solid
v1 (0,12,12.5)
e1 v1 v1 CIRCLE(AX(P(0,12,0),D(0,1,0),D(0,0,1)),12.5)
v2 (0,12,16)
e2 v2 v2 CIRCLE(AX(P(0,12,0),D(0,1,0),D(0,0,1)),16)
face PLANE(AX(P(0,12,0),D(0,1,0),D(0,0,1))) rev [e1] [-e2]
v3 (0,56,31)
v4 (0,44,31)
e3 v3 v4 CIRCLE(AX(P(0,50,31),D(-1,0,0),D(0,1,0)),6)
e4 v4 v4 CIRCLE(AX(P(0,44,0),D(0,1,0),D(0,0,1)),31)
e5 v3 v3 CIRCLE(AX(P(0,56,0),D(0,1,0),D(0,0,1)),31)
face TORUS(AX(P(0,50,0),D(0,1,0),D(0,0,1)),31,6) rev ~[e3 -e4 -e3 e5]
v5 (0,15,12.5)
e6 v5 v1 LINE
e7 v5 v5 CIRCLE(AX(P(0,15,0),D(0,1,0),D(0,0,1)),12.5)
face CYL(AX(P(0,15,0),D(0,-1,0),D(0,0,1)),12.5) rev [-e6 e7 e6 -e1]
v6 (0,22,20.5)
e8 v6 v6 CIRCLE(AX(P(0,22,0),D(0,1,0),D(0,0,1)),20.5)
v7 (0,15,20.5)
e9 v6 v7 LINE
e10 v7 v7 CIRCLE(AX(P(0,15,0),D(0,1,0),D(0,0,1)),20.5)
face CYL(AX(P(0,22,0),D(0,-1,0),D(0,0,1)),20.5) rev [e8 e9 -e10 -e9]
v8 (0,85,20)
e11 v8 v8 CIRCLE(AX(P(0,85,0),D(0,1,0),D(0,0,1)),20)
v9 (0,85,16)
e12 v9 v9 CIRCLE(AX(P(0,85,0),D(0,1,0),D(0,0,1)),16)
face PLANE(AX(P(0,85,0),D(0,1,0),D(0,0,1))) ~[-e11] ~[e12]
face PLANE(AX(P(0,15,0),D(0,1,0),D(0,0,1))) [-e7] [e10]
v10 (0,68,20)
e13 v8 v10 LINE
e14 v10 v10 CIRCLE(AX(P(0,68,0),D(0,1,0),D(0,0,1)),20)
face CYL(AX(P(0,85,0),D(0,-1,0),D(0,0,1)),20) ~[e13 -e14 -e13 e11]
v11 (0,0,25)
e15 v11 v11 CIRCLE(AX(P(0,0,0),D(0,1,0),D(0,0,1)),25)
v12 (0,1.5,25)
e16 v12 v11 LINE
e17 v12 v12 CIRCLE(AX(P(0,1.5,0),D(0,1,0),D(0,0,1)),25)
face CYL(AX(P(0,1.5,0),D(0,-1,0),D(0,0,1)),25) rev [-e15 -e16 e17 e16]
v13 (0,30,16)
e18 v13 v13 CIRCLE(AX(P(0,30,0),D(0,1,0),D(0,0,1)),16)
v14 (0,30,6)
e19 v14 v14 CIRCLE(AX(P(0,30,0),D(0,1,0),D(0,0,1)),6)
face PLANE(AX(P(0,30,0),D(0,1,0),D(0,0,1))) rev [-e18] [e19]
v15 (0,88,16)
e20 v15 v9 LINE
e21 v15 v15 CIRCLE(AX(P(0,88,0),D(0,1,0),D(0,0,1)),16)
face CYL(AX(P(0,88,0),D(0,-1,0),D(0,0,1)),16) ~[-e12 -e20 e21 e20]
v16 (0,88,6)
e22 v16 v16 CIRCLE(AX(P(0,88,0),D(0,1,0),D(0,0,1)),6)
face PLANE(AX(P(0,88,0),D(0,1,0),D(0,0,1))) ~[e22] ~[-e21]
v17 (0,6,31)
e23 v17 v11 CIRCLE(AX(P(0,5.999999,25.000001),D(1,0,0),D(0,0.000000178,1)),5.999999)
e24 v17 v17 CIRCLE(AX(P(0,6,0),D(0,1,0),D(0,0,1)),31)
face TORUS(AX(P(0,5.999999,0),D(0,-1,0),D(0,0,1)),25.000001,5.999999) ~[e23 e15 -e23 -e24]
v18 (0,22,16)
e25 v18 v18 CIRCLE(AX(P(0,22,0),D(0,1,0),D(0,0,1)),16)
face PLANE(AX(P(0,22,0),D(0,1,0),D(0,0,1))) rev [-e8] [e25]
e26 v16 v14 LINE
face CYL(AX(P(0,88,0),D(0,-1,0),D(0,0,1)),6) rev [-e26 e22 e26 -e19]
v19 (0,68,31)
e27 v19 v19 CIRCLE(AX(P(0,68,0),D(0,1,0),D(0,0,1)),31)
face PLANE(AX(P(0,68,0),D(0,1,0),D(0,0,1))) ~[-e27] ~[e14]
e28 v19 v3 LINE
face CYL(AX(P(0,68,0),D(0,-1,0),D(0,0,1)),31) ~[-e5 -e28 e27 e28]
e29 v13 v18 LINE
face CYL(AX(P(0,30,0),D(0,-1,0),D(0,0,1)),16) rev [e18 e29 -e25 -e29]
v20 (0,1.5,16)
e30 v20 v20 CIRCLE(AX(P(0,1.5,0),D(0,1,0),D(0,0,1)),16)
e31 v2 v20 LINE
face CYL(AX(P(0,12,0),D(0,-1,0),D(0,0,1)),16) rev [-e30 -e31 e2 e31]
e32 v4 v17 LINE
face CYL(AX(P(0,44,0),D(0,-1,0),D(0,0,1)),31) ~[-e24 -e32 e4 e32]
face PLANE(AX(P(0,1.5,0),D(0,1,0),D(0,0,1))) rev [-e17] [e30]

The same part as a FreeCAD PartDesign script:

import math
import FreeCAD as App
import Part
import Sketcher


def add_polygon(sketch, points):
    """Adds a closed chain of lines whose ends are joined by coincident constraints."""
    first, n = sketch.GeometryCount, len(points)
    for a, b in zip(points, points[1:] + points[:1]):
        sketch.addGeometry(Part.LineSegment(App.Vector(*a, 0), App.Vector(*b, 0)), False)
    for i in range(n):
        sketch.addConstraint(Sketcher.Constraint("Coincident", first + i, 2, first + (i + 1) % n, 1))

doc = App.newDocument("Part")
body = doc.addObject("PartDesign::Body", "Body")

# Sketch on YZ plane
sketch1 = body.newObject("Sketcher::SketchObject", "Sketch")
sketch1.AttachmentSupport = (doc.getObject("YZ_Plane"), [""])
sketch1.MapMode = "FlatFace"
sketch1.addGeometry(Part.LineSegment(App.Vector(0, 25, 0), App.Vector(0, 0, 0)), False)
sketch1.addGeometry(Part.LineSegment(App.Vector(0, 0, 0), App.Vector(88, 0, 0)), False)
sketch1.addGeometry(Part.LineSegment(App.Vector(88, 0, 0), App.Vector(88, 16, 0)), False)
sketch1.addGeometry(Part.LineSegment(App.Vector(88, 16, 0), App.Vector(85, 16, 0)), False)
sketch1.addGeometry(Part.LineSegment(App.Vector(85, 16, 0), App.Vector(85, 20, 0)), False)
sketch1.addGeometry(Part.LineSegment(App.Vector(85, 20, 0), App.Vector(68, 20, 0)), False)
sketch1.addGeometry(Part.LineSegment(App.Vector(68, 20, 0), App.Vector(68, 31, 0)), False)
sketch1.addGeometry(Part.LineSegment(App.Vector(68, 31, 0), App.Vector(56, 31, 0)), False)
sketch1.addGeometry(Part.ArcOfCircle(Part.Circle(App.Vector(50, 31, 0), App.Vector(0, 0, 1), 6), math.radians(180), math.radians(360)), False)
sketch1.addGeometry(Part.LineSegment(App.Vector(44, 31, 0), App.Vector(6, 31, 0)), False)
sketch1.addGeometry(Part.ArcOfCircle(Part.Circle(App.Vector(6, 25, 0), App.Vector(0, 0, 1), 6), math.radians(90), math.radians(180)), False)
sketch1.addConstraint(Sketcher.Constraint("Coincident", 0, 2, 1, 1))
sketch1.addConstraint(Sketcher.Constraint("Coincident", 1, 2, 2, 1))
sketch1.addConstraint(Sketcher.Constraint("Coincident", 2, 2, 3, 1))
sketch1.addConstraint(Sketcher.Constraint("Coincident", 3, 2, 4, 1))
sketch1.addConstraint(Sketcher.Constraint("Coincident", 4, 2, 5, 1))
sketch1.addConstraint(Sketcher.Constraint("Coincident", 5, 2, 6, 1))
sketch1.addConstraint(Sketcher.Constraint("Coincident", 6, 2, 7, 1))
sketch1.addConstraint(Sketcher.Constraint("Coincident", 7, 2, 8, 2))
sketch1.addConstraint(Sketcher.Constraint("Coincident", 8, 1, 9, 1))
sketch1.addConstraint(Sketcher.Constraint("Tangent", 9, 2, 10, 1))
sketch1.addConstraint(Sketcher.Constraint("Tangent", 10, 2, 0, 1))
sketch1.addConstraint(Sketcher.Constraint("Vertical", 0))
sketch1.addConstraint(Sketcher.Constraint("Horizontal", 1))
sketch1.addConstraint(Sketcher.Constraint("Vertical", 2))
sketch1.addConstraint(Sketcher.Constraint("Horizontal", 3))
sketch1.addConstraint(Sketcher.Constraint("Vertical", 4))
sketch1.addConstraint(Sketcher.Constraint("Horizontal", 5))
sketch1.addConstraint(Sketcher.Constraint("Vertical", 6))
sketch1.addConstraint(Sketcher.Constraint("Horizontal", 7))
sketch1.addConstraint(Sketcher.Constraint("Horizontal", 9))
sketch1.addConstraint(Sketcher.Constraint("Coincident", 0, 2, -1, 1))
sketch1.addConstraint(Sketcher.Constraint("Equal", 8, 10))
sketch1.addConstraint(Sketcher.Constraint("Horizontal", 8, 3, 6, 2))
sketch1.addConstraint(Sketcher.Constraint("Horizontal", 7, 2, 8, 1))
sketch1.addConstraint(Sketcher.Constraint("Radius", 8, 6.0))
sketch1.addConstraint(Sketcher.Constraint("DistanceX", 1, 1, 1, 2, 88.0))
sketch1.addConstraint(Sketcher.Constraint("DistanceX", 3, 2, 3, 1, 3.0))
sketch1.addConstraint(Sketcher.Constraint("DistanceX", 5, 2, 5, 1, 17.0))
sketch1.addConstraint(Sketcher.Constraint("DistanceX", 7, 2, 7, 1, 12.0))
sketch1.addConstraint(Sketcher.Constraint("DistanceY", 0, 2, 0, 1, 25.0))
sketch1.addConstraint(Sketcher.Constraint("DistanceY", 2, 1, 2, 2, 16.0))
sketch1.addConstraint(Sketcher.Constraint("DistanceY", 4, 1, 4, 2, 4.0))
revolution = body.newObject("PartDesign::Revolution", "Revolution")
revolution.Profile = sketch1
revolution.ReferenceAxis = (sketch1, ["H_Axis"])
revolution.Angle = 360

# Sketch on YZ plane
sketch2 = body.newObject("Sketcher::SketchObject", "Sketch001")
sketch2.AttachmentSupport = (doc.getObject("YZ_Plane"), [""])
sketch2.MapMode = "FlatFace"
add_polygon(sketch2, [(0, 25), (0, 0), (88, 0), (88, 6), (30, 6), (30, 16), (22, 16), (22, 20.5), (15, 20.5), (15, 12.5), (12, 12.5), (12, 16), (1.5, 16), (1.5, 25)])  # lines 0-13
sketch2.addConstraint(Sketcher.Constraint("Vertical", 0))
sketch2.addConstraint(Sketcher.Constraint("Horizontal", 1))
sketch2.addConstraint(Sketcher.Constraint("Vertical", 2))
sketch2.addConstraint(Sketcher.Constraint("Horizontal", 3))
sketch2.addConstraint(Sketcher.Constraint("Vertical", 4))
sketch2.addConstraint(Sketcher.Constraint("Horizontal", 5))
sketch2.addConstraint(Sketcher.Constraint("Vertical", 6))
sketch2.addConstraint(Sketcher.Constraint("Horizontal", 7))
sketch2.addConstraint(Sketcher.Constraint("Vertical", 8))
sketch2.addConstraint(Sketcher.Constraint("Horizontal", 9))
sketch2.addConstraint(Sketcher.Constraint("Vertical", 10))
sketch2.addConstraint(Sketcher.Constraint("Horizontal", 11))
sketch2.addConstraint(Sketcher.Constraint("Vertical", 12))
sketch2.addConstraint(Sketcher.Constraint("Horizontal", 13))
sketch2.addConstraint(Sketcher.Constraint("Coincident", 0, 2, -1, 1))
sketch2.addConstraint(Sketcher.Constraint("Horizontal", 5, 2, 10, 2))
sketch2.addConstraint(Sketcher.Constraint("Equal", 5, 8))
sketch2.addConstraint(Sketcher.Constraint("DistanceX", 1, 1, 1, 2, 88.0))
sketch2.addConstraint(Sketcher.Constraint("DistanceX", 3, 2, 3, 1, 58.0))
sketch2.addConstraint(Sketcher.Constraint("DistanceX", 5, 2, 5, 1, 8.0))
sketch2.addConstraint(Sketcher.Constraint("DistanceX", 7, 2, 7, 1, 7.0))
sketch2.addConstraint(Sketcher.Constraint("DistanceX", 9, 2, 9, 1, 3.0))
sketch2.addConstraint(Sketcher.Constraint("DistanceY", 0, 2, 0, 1, 25.0))
sketch2.addConstraint(Sketcher.Constraint("DistanceY", 2, 1, 2, 2, 6.0))
sketch2.addConstraint(Sketcher.Constraint("DistanceY", 4, 1, 4, 2, 10.0))
sketch2.addConstraint(Sketcher.Constraint("DistanceX", 11, 2, 11, 1, 10.5))
sketch2.addConstraint(Sketcher.Constraint("DistanceY", 6, 1, 6, 2, 4.5))
groove = body.newObject("PartDesign::Groove", "Groove")
groove.Profile = sketch2
groove.ReferenceAxis = (sketch2, ["H_Axis"])
groove.Angle = 360

doc.recompute()
